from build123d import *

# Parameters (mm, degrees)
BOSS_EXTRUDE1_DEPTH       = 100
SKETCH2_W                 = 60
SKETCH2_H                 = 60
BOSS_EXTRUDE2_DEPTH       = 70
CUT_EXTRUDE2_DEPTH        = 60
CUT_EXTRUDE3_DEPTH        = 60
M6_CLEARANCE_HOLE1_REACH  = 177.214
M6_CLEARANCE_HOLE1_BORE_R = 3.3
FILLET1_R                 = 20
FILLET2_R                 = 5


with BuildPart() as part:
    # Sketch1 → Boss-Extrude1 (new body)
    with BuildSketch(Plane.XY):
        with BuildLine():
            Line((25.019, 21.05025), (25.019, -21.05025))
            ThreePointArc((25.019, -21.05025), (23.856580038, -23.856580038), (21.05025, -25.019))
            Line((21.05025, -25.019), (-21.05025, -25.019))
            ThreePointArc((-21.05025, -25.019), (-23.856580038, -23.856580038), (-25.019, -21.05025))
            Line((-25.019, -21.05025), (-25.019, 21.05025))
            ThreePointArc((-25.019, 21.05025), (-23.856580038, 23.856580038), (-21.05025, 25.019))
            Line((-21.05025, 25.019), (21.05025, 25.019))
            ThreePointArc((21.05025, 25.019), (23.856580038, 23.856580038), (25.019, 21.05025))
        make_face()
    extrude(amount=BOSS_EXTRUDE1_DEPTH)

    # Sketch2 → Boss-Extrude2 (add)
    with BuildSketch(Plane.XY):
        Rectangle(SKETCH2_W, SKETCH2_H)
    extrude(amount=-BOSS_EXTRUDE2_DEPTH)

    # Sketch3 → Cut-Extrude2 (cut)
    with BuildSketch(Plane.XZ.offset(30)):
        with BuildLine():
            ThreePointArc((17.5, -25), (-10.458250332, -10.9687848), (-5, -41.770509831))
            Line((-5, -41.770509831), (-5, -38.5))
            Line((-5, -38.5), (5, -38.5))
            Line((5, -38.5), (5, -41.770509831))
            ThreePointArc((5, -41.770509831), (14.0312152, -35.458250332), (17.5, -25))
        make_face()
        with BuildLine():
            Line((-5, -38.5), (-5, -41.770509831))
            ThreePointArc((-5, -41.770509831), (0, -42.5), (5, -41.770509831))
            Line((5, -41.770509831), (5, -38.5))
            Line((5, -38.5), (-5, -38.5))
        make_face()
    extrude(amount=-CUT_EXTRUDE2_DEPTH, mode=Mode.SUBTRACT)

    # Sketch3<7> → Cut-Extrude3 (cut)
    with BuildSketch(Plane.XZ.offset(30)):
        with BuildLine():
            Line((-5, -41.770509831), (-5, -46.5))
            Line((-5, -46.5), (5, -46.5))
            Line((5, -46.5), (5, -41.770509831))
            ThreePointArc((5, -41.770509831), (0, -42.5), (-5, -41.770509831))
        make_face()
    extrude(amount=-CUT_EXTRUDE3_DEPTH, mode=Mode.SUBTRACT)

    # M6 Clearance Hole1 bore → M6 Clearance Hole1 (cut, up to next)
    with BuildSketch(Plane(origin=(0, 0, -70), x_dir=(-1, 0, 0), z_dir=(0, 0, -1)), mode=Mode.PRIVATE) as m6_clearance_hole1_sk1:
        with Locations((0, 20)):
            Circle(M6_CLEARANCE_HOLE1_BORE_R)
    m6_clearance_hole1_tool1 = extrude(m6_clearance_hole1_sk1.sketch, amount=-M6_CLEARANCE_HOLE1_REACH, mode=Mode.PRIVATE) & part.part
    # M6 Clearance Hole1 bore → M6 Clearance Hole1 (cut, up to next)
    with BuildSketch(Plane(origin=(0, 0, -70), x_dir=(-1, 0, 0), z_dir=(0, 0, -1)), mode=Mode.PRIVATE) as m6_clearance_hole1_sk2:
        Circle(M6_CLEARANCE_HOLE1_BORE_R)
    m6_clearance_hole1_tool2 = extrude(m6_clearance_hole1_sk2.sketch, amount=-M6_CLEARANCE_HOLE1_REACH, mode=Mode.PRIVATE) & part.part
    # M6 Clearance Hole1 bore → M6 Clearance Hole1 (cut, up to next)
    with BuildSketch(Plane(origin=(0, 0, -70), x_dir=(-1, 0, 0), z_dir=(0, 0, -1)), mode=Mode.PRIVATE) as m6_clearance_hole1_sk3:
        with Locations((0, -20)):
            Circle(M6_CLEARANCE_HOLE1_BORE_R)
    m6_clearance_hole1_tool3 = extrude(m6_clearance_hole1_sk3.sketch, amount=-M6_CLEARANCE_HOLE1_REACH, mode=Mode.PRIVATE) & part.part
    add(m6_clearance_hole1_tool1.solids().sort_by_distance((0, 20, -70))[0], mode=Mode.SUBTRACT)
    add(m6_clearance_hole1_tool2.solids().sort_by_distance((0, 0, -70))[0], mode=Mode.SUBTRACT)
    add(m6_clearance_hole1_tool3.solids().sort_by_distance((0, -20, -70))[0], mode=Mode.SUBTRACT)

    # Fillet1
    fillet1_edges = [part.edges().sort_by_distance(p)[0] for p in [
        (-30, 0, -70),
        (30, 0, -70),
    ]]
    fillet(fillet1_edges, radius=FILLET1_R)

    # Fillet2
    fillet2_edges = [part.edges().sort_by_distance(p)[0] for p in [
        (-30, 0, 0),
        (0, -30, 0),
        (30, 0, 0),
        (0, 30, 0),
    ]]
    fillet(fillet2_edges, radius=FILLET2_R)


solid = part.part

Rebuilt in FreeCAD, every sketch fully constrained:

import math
import FreeCAD as App
import Part
import Sketcher

V = App.Vector


def edges_at(feature, points):
    """Names of the edges that pass closest to the given points."""
    edges = feature.Shape.Edges
    near = lambda p: min(range(len(edges)), key=lambda i: edges[i].distToShape(Part.Vertex(*p))[0])
    return sorted({f"Edge{near(p) + 1}" for p in points})

doc = App.newDocument("Part")
body = doc.addObject("PartDesign::Body", "Body")

# Sketch on XY plane
sketch1 = body.newObject("Sketcher::SketchObject", "Sketch")
sketch1.AttachmentSupport = (doc.getObject("XY_Plane"), [""])
sketch1.MapMode = "FlatFace"
sketch1.addGeometry(Part.LineSegment(V(25, -21.1, 0), V(25, 21.1, 0)), False)
sketch1.addGeometry(Part.ArcOfCircle(Part.Circle(V(21.1, 21.1, 0), V(0, 0, 1), 4), math.radians(0), math.radians(90)), False)
sketch1.addGeometry(Part.LineSegment(V(21.1, 25, 0), V(-21.1, 25, 0)), False)
sketch1.addGeometry(Part.ArcOfCircle(Part.Circle(V(-21.1, 21.1, 0), V(0, 0, 1), 4), math.radians(90), math.radians(180)), False)
sketch1.addGeometry(Part.LineSegment(V(-25, 21.1, 0), V(-25, -21.1, 0)), False)
sketch1.addGeometry(Part.ArcOfCircle(Part.Circle(V(-21.1, -21.1, 0), V(0, 0, 1), 4), math.radians(180), math.radians(270)), False)
sketch1.addGeometry(Part.LineSegment(V(-21.1, -25, 0), V(21.1, -25, 0)), False)
sketch1.addGeometry(Part.ArcOfCircle(Part.Circle(V(21.1, -21.1, 0), V(0, 0, 1), 4), math.radians(-90), math.radians(0)), False)
sketch1.addConstraint(Sketcher.Constraint("Tangent", 0, 2, 1, 1))
sketch1.addConstraint(Sketcher.Constraint("Tangent", 1, 2, 2, 1))
sketch1.addConstraint(Sketcher.Constraint("Tangent", 2, 2, 3, 1))
sketch1.addConstraint(Sketcher.Constraint("Tangent", 3, 2, 4, 1))
sketch1.addConstraint(Sketcher.Constraint("Tangent", 4, 2, 5, 1))
sketch1.addConstraint(Sketcher.Constraint("Tangent", 5, 2, 6, 1))
sketch1.addConstraint(Sketcher.Constraint("Tangent", 6, 2, 7, 1))
sketch1.addConstraint(Sketcher.Constraint("Tangent", 7, 2, 0, 1))
sketch1.addConstraint(Sketcher.Constraint("Vertical", 0))
sketch1.addConstraint(Sketcher.Constraint("Horizontal", 2))
sketch1.addConstraint(Sketcher.Constraint("Vertical", 4))
sketch1.addConstraint(Sketcher.Constraint("Horizontal", 6))
sketch1.addConstraint(Sketcher.Constraint("Equal", 1, 3))
sketch1.addConstraint(Sketcher.Constraint("Equal", 3, 5))
sketch1.addConstraint(Sketcher.Constraint("Equal", 5, 7))
sketch1.addConstraint(Sketcher.Constraint("Symmetric", 1, 3, 5, 3, -1, 1))
sketch1.addConstraint(Sketcher.Constraint("Equal", 6, 0))
sketch1.addConstraint(Sketcher.Constraint("Radius", 1, 3.96875))
sketch1.addConstraint(Sketcher.Constraint("DistanceX", 2, 2, 2, 1, 42.1005))
pad1 = body.newObject("PartDesign::Pad", "Pad")
pad1.Profile = sketch1
pad1.Length = 100

# Sketch on XY plane
sketch2 = body.newObject("Sketcher::SketchObject", "Sketch001")
sketch2.AttachmentSupport = (doc.getObject("XY_Plane"), [""])
sketch2.MapMode = "FlatFace"
sketch2.addGeometry(Part.LineSegment(V(-30, 30, 0), V(-30, -30, 0)), False)
sketch2.addGeometry(Part.LineSegment(V(-30, -30, 0), V(30, -30, 0)), False)
sketch2.addGeometry(Part.LineSegment(V(30, -30, 0), V(30, 30, 0)), False)
sketch2.addGeometry(Part.LineSegment(V(30, 30, 0), V(-30, 30, 0)), False)
sketch2.addConstraint(Sketcher.Constraint("Coincident", 0, 2, 1, 1))
sketch2.addConstraint(Sketcher.Constraint("Coincident", 1, 2, 2, 1))
sketch2.addConstraint(Sketcher.Constraint("Coincident", 2, 2, 3, 1))
sketch2.addConstraint(Sketcher.Constraint("Coincident", 3, 2, 0, 1))
sketch2.addConstraint(Sketcher.Constraint("Vertical", 0))
sketch2.addConstraint(Sketcher.Constraint("Horizontal", 1))
sketch2.addConstraint(Sketcher.Constraint("Vertical", 2))
sketch2.addConstraint(Sketcher.Constraint("Horizontal", 3))
sketch2.addConstraint(Sketcher.Constraint("Symmetric", 0, 2, 2, 2, -1, 1))
sketch2.addConstraint(Sketcher.Constraint("Equal", 3, 0))
sketch2.addConstraint(Sketcher.Constraint("DistanceX", 1, 1, 1, 2, 60.0))
pad2 = body.newObject("PartDesign::Pad", "Pad001")
pad2.Profile = sketch2
pad2.Length = 70
pad2.Reversed = True

# Sketch on XZ plane
sketch3 = body.newObject("Sketcher::SketchObject", "Sketch002")
sketch3.AttachmentSupport = (doc.getObject("XZ_Plane"), [""])
sketch3.MapMode = "FlatFace"
sketch3.AttachmentOffset = App.Placement(V(0, 0, 30), App.Rotation())
sketch3.addGeometry(Part.ArcOfCircle(Part.Circle(V(0, -25, 0), V(0, 0, 1), 18), math.radians(0), math.radians(253)), False)
sketch3.addGeometry(Part.ArcOfCircle(Part.Circle(V(0, -25, 0), V(0, 0, 1), 17), math.radians(-107), math.radians(-73)), False)
sketch3.addGeometry(Part.ArcOfCircle(Part.Circle(V(0, -25, 0), V(0, 0, 1), 18), math.radians(-73), math.radians(0)), False)
sketch3.addConstraint(Sketcher.Constraint("Tangent", 0, 2, 1, 1))
sketch3.addConstraint(Sketcher.Constraint("Tangent", 1, 2, 2, 1))
sketch3.addConstraint(Sketcher.Constraint("Tangent", 2, 2, 0, 1))
sketch3.addConstraint(Sketcher.Constraint("Symmetric", 0, 2, 1, 2, -2))
sketch3.addConstraint(Sketcher.Constraint("Horizontal", 1, 3, 2, 2))
sketch3.addConstraint(Sketcher.Constraint("Radius", 0, 17.5))
sketch3.addConstraint(Sketcher.Constraint("DistanceY", 0, 3, -1, 1, 25.0))
sketch3.addConstraint(Sketcher.Constraint("DistanceX", 0, 2, -1, 1, 5.0))
pocket1 = body.newObject("PartDesign::Pocket", "Pocket")
pocket1.Profile = sketch3
pocket1.Length = 60

# Sketch on XZ plane
sketch4 = body.newObject("Sketcher::SketchObject", "Sketch003")
sketch4.AttachmentSupport = (doc.getObject("XZ_Plane"), [""])
sketch4.MapMode = "FlatFace"
sketch4.AttachmentOffset = App.Placement(V(0, 0, 30), App.Rotation())
sketch4.addGeometry(Part.LineSegment(V(-5, -41.8, 0), V(-5, -46.5, 0)), False)
sketch4.addGeometry(Part.LineSegment(V(-5, -46.5, 0), V(5, -46.5, 0)), False)
sketch4.addGeometry(Part.LineSegment(V(5, -46.5, 0), V(5, -41.8, 0)), False)
sketch4.addGeometry(Part.ArcOfCircle(Part.Circle(V(0, -25, 0), V(0, 0, 1), 17.5), math.radians(-107), math.radians(-73)), False)
sketch4.addConstraint(Sketcher.Constraint("Coincident", 0, 2, 1, 1))
sketch4.addConstraint(Sketcher.Constraint("Coincident", 1, 2, 2, 1))
sketch4.addConstraint(Sketcher.Constraint("Coincident", 2, 2, 3, 2))
sketch4.addConstraint(Sketcher.Constraint("Coincident", 3, 1, 0, 1))
sketch4.addConstraint(Sketcher.Constraint("Vertical", 0))
sketch4.addConstraint(Sketcher.Constraint("Horizontal", 1))
sketch4.addConstraint(Sketcher.Constraint("Vertical", 2))
sketch4.addConstraint(Sketcher.Constraint("Symmetric", 2, 2, 3, 1, -2))
sketch4.addConstraint(Sketcher.Constraint("Radius", 3, 17.5))
sketch4.addConstraint(Sketcher.Constraint("DistanceX", 1, 1, 1, 2, 10.0))
sketch4.addConstraint(Sketcher.Constraint("DistanceY", 3, 3, -1, 1, 25.0))
sketch4.addConstraint(Sketcher.Constraint("DistanceY", 0, 2, -1, 1, 46.5))
pocket2 = body.newObject("PartDesign::Pocket", "Pocket001")
pocket2.Profile = sketch4
pocket2.Length = 60

# Sketch on XY plane
sketch5 = body.newObject("Sketcher::SketchObject", "Sketch004")
sketch5.AttachmentSupport = (doc.getObject("XY_Plane"), [""])
sketch5.MapMode = "FlatFace"
sketch5.AttachmentOffset = App.Placement(V(0, 0, -70), App.Rotation())
sketch5.addGeometry(Part.Circle(V(0, 20, 0), V(0, 0, 1), 3.3), False)
sketch5.addConstraint(Sketcher.Constraint("PointOnObject", 0, 3, -2))
sketch5.addConstraint(Sketcher.Constraint("Diameter", 0, 6.6))
sketch5.addConstraint(Sketcher.Constraint("DistanceY", -1, 1, 0, 3, 20.0))
pocket3 = body.newObject("PartDesign::Pocket", "Pocket002")
pocket3.Profile = sketch5
pocket3.Type = "UpToFirst"
pocket3.Reversed = True

# Sketch on XY plane
sketch6 = body.newObject("Sketcher::SketchObject", "Sketch005")
sketch6.AttachmentSupport = (doc.getObject("XY_Plane"), [""])
sketch6.MapMode = "FlatFace"
sketch6.AttachmentOffset = App.Placement(V(0, 0, -70), App.Rotation())
sketch6.addGeometry(Part.Circle(V(0, 0, 0), V(0, 0, 1), 3.3), False)
sketch6.addConstraint(Sketcher.Constraint("Coincident", 0, 3, -1, 1))
sketch6.addConstraint(Sketcher.Constraint("Diameter", 0, 6.6))
pocket4 = body.newObject("PartDesign::Pocket", "Pocket003")
pocket4.Profile = sketch6
pocket4.Type = "UpToFirst"
pocket4.Reversed = True

# Sketch on XY plane
sketch7 = body.newObject("Sketcher::SketchObject", "Sketch006")
sketch7.AttachmentSupport = (doc.getObject("XY_Plane"), [""])
sketch7.MapMode = "FlatFace"
sketch7.AttachmentOffset = App.Placement(V(0, 0, -70), App.Rotation())
sketch7.addGeometry(Part.Circle(V(0, -20, 0), V(0, 0, 1), 3.3), False)
sketch7.addConstraint(Sketcher.Constraint("PointOnObject", 0, 3, -2))
sketch7.addConstraint(Sketcher.Constraint("Diameter", 0, 6.6))
sketch7.addConstraint(Sketcher.Constraint("DistanceY", 0, 3, -1, 1, 20.0))
pocket5 = body.newObject("PartDesign::Pocket", "Pocket004")
pocket5.Profile = sketch7
pocket5.Type = "UpToFirst"
pocket5.Reversed = True
doc.recompute()

fillet = body.newObject("PartDesign::Fillet", "Fillet")
fillet.Base = (pocket5, edges_at(pocket5, [(-30, 0, -70), (30, 0, -70)]))
fillet.Radius = 20
doc.recompute()

fillet2 = body.newObject("PartDesign::Fillet", "Fillet001")
fillet2.Base = (fillet, edges_at(fillet, [
    (-30, 0, 0),
    (0, -30, 0),
    (30, 0, 0),
    (0, 30, 0),
]))
fillet2.Radius = 5

doc.recompute()
